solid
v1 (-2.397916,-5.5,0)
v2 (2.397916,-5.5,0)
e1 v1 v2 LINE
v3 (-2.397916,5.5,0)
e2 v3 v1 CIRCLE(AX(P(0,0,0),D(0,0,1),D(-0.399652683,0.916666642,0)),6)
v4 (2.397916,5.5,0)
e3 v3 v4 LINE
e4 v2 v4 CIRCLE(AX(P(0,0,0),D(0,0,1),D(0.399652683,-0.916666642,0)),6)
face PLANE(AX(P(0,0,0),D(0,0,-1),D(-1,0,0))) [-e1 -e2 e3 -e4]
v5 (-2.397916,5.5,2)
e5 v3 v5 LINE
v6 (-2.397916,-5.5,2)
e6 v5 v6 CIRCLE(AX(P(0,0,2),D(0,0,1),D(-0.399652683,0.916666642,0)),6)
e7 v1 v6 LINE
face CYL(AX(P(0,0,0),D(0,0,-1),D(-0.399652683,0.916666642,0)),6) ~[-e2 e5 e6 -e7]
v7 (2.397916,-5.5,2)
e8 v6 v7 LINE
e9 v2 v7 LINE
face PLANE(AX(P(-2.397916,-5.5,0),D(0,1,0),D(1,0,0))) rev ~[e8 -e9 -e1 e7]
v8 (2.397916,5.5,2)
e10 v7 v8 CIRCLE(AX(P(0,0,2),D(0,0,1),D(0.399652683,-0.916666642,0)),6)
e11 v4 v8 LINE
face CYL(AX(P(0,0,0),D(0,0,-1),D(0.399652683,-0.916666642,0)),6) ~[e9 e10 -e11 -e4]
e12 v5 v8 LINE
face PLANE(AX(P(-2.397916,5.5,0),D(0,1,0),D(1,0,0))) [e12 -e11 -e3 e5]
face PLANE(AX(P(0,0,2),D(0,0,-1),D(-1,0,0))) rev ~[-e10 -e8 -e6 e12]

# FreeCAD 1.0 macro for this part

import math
import FreeCAD as App
import Part
import Sketcher

V = App.Vector

doc = App.newDocument("Part")
body = doc.addObject("PartDesign::Body", "Body")

sketch1 = doc.addObject("Sketcher::SketchObject", "Sketch")
body.addObject(sketch1)
sketch1.AttachmentSupport = (doc.XY_Plane, [""])
sketch1.MapMode = "FlatFace"
sketch1.addGeometry([
    Part.LineSegment(V(2.4, 5.5, 0), V(-2.4, 5.5, 0)),
    Part.ArcOfCircle(Part.Circle(V(0, 0, 0), V(0, 0, 1), 6), math.radians(114), math.radians(246)),
    Part.LineSegment(V(-2.4, -5.5, 0), V(2.4, -5.5, 0)),
    Part.ArcOfCircle(Part.Circle(V(0, 0, 0), V(0, 0, 1), 6), math.radians(-66), math.radians(66)),
], False)
sketch1.addConstraint([
    Sketcher.Constraint("Coincident", 0, 2, 1, 1),
    Sketcher.Constraint("Coincident", 1, 2, 2, 1),
    Sketcher.Constraint("Coincident", 2, 2, 3, 1),
    Sketcher.Constraint("Coincident", 3, 2, 0, 1),
    Sketcher.Constraint("Horizontal", 0),
    Sketcher.Constraint("Horizontal", 2),
    Sketcher.Constraint("Coincident", 1, 3, -1, 1),
    Sketcher.Constraint("Coincident", 3, 3, -1, 1),
    Sketcher.Constraint("Equal", 1, 3),
    Sketcher.Constraint("Vertical", 0, 2, 1, 2),
    Sketcher.Constraint("Radius", 1, 6.0),
    Sketcher.Constraint("DistanceY", 1, 2, 0, 2, 11.0),
])
pad1 = doc.addObject("PartDesign::Pad", "Pad")
body.addObject(pad1)
pad1.Profile = sketch1
pad1.Length = 2

doc.recompute()
